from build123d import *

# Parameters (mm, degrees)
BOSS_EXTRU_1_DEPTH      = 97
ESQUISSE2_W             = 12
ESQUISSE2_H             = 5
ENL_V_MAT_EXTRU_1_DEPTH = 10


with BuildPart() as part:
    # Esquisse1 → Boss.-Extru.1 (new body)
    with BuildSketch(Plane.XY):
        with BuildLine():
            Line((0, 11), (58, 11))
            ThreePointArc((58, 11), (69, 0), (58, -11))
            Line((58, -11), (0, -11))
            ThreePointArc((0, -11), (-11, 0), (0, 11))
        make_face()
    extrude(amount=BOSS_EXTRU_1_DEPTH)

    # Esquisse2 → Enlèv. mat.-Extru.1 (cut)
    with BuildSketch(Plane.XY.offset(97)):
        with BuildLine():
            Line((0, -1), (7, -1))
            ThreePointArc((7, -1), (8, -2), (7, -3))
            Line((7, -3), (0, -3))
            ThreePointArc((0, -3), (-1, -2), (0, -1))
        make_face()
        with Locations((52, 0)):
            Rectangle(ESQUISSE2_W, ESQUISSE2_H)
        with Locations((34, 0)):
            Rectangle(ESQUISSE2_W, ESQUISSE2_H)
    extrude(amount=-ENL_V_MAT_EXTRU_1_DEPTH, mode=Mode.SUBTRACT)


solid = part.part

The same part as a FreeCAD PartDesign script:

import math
import FreeCAD as App
import Part
import Sketcher

V = App.Vector

doc = App.newDocument("Part")
body = doc.addObject("PartDesign::Body", "Body")

sketch1 = doc.addObject("Sketcher::SketchObject", "Sketch")
body.addObject(sketch1)
sketch1.AttachmentSupport = (doc.XY_Plane, [""])
sketch1.MapMode = "FlatFace"
sketch1.addGeometry(Part.LineSegment(V(58, 11, 0), V(0, 11, 0)), False)
sketch1.addGeometry(Part.ArcOfCircle(Part.Circle(V(0, 0, 0), V(0, 0, 1), 11), math.radians(90), math.radians(270)), False)
sketch1.addGeometry(Part.LineSegment(V(0, -11, 0), V(58, -11, 0)), False)
sketch1.addGeometry(Part.ArcOfCircle(Part.Circle(V(58, 0, 0), V(0, 0, 1), 11), math.radians(-90), math.radians(90)), False)
sketch1.addConstraint(Sketcher.Constraint("Tangent", 0, 2, 1, 1))
sketch1.addConstraint(Sketcher.Constraint("Tangent", 1, 2, 2, 1))
sketch1.addConstraint(Sketcher.Constraint("Tangent", 2, 2, 3, 1))
sketch1.addConstraint(Sketcher.Constraint("Tangent", 3, 2, 0, 1))
sketch1.addConstraint(Sketcher.Constraint("Horizontal", 0))
sketch1.addConstraint(Sketcher.Constraint("Horizontal", 2))
sketch1.addConstraint(Sketcher.Constraint("Coincident", 1, 3, -1, 1))
sketch1.addConstraint(Sketcher.Constraint("Radius", 1, 11.0))
sketch1.addConstraint(Sketcher.Constraint("DistanceX", 0, 2, 0, 1, 58.0))
pad1 = doc.addObject("PartDesign::Pad", "Pad")
body.addObject(pad1)
pad1.Profile = sketch1
pad1.Length = 97

sketch2 = doc.addObject("Sketcher::SketchObject", "Sketch001")
body.addObject(sketch2)
sketch2.AttachmentSupport = (doc.XY_Plane, [""])
sketch2.MapMode = "FlatFace"
sketch2.AttachmentOffset = App.Placement(V(0, 0, 97), App.Rotation())
sketch2.addGeometry(Part.LineSegment(V(7, -1, 0), V(0, -1, 0)), False)
sketch2.addGeometry(Part.ArcOfCircle(Part.Circle(V(0, -2, 0), V(0, 0, 1), 1), math.radians(90), math.radians(270)), False)
sketch2.addGeometry(Part.LineSegment(V(0, -3, 0), V(7, -3, 0)), False)
sketch2.addGeometry(Part.ArcOfCircle(Part.Circle(V(7, -2, 0), V(0, 0, 1), 1), math.radians(-90), math.radians(90)), False)
sketch2.addGeometry(Part.LineSegment(V(46, 2.5, 0), V(46, -2.5, 0)), False)
sketch2.addGeometry(Part.LineSegment(V(46, -2.5, 0), V(58, -2.5, 0)), False)
sketch2.addGeometry(Part.LineSegment(V(58, -2.5, 0), V(58, 2.5, 0)), False)
sketch2.addGeometry(Part.LineSegment(V(58, 2.5, 0), V(46, 2.5, 0)), False)
sketch2.addGeometry(Part.LineSegment(V(28, 2.5, 0), V(28, -2.5, 0)), False)
sketch2.addGeometry(Part.LineSegment(V(28, -2.5, 0), V(40, -2.5, 0)), False)
sketch2.addGeometry(Part.LineSegment(V(40, -2.5, 0), V(40, 2.5, 0)), False)
sketch2.addGeometry(Part.LineSegment(V(40, 2.5, 0), V(28, 2.5, 0)), False)
sketch2.addConstraint(Sketcher.Constraint("Tangent", 0, 2, 1, 1))
sketch2.addConstraint(Sketcher.Constraint("Tangent", 1, 2, 2, 1))
sketch2.addConstraint(Sketcher.Constraint("Tangent", 2, 2, 3, 1))
sketch2.addConstraint(Sketcher.Constraint("Tangent", 3, 2, 0, 1))
sketch2.addConstraint(Sketcher.Constraint("Coincident", 4, 2, 5, 1))
sketch2.addConstraint(Sketcher.Constraint("Coincident", 5, 2, 6, 1))
sketch2.addConstraint(Sketcher.Constraint("Coincident", 6, 2, 7, 1))
sketch2.addConstraint(Sketcher.Constraint("Coincident", 7, 2, 4, 1))
sketch2.addConstraint(Sketcher.Constraint("Coincident", 8, 2, 9, 1))
sketch2.addConstraint(Sketcher.Constraint("Coincident", 9, 2, 10, 1))
sketch2.addConstraint(Sketcher.Constraint("Coincident", 10, 2, 11, 1))
sketch2.addConstraint(Sketcher.Constraint("Coincident", 11, 2, 8, 1))
sketch2.addConstraint(Sketcher.Constraint("Horizontal", 0))
sketch2.addConstraint(Sketcher.Constraint("Horizontal", 2))
sketch2.addConstraint(Sketcher.Constraint("Vertical", 4))
sketch2.addConstraint(Sketcher.Constraint("Horizontal", 5))
sketch2.addConstraint(Sketcher.Constraint("Vertical", 6))
sketch2.addConstraint(Sketcher.Constraint("Horizontal", 7))
sketch2.addConstraint(Sketcher.Constraint("Vertical", 8))
sketch2.addConstraint(Sketcher.Constraint("Horizontal", 9))
sketch2.addConstraint(Sketcher.Constraint("Vertical", 10))
sketch2.addConstraint(Sketcher.Constraint("Horizontal", 11))
sketch2.addConstraint(Sketcher.Constraint("PointOnObject", 1, 3, -2))
sketch2.addConstraint(Sketcher.Constraint("Horizontal", 5, 2, 8, 2))
sketch2.addConstraint(Sketcher.Constraint("Horizontal", 7, 2, 10, 2))
sketch2.addConstraint(Sketcher.Constraint("Equal", 7, 9))
sketch2.addConstraint(Sketcher.Constraint("Radius", 1, 1.0))
sketch2.addConstraint(Sketcher.Constraint("DistanceX", 0, 2, 0, 1, 7.0))
sketch2.addConstraint(Sketcher.Constraint("DistanceX", 5, 1, 5, 2, 12.0))
sketch2.addConstraint(Sketcher.Constraint("DistanceY", 4, 2, 4, 1, 5.0))
sketch2.addConstraint(Sketcher.Constraint("DistanceY", 1, 3, -1, 1, 2.0))
sketch2.addConstraint(Sketcher.Constraint("DistanceX", -1, 1, 4, 2, 46.0))
sketch2.addConstraint(Sketcher.Constraint("DistanceX", -1, 1, 8, 2, 28.0))
sketch2.addConstraint(Sketcher.Constraint("DistanceY", 4, 2, -1, 1, 2.5))
pocket1 = doc.addObject("PartDesign::Pocket", "Pocket")
body.addObject(pocket1)
pocket1.Profile = sketch2
pocket1.Length = 10

doc.recompute()
